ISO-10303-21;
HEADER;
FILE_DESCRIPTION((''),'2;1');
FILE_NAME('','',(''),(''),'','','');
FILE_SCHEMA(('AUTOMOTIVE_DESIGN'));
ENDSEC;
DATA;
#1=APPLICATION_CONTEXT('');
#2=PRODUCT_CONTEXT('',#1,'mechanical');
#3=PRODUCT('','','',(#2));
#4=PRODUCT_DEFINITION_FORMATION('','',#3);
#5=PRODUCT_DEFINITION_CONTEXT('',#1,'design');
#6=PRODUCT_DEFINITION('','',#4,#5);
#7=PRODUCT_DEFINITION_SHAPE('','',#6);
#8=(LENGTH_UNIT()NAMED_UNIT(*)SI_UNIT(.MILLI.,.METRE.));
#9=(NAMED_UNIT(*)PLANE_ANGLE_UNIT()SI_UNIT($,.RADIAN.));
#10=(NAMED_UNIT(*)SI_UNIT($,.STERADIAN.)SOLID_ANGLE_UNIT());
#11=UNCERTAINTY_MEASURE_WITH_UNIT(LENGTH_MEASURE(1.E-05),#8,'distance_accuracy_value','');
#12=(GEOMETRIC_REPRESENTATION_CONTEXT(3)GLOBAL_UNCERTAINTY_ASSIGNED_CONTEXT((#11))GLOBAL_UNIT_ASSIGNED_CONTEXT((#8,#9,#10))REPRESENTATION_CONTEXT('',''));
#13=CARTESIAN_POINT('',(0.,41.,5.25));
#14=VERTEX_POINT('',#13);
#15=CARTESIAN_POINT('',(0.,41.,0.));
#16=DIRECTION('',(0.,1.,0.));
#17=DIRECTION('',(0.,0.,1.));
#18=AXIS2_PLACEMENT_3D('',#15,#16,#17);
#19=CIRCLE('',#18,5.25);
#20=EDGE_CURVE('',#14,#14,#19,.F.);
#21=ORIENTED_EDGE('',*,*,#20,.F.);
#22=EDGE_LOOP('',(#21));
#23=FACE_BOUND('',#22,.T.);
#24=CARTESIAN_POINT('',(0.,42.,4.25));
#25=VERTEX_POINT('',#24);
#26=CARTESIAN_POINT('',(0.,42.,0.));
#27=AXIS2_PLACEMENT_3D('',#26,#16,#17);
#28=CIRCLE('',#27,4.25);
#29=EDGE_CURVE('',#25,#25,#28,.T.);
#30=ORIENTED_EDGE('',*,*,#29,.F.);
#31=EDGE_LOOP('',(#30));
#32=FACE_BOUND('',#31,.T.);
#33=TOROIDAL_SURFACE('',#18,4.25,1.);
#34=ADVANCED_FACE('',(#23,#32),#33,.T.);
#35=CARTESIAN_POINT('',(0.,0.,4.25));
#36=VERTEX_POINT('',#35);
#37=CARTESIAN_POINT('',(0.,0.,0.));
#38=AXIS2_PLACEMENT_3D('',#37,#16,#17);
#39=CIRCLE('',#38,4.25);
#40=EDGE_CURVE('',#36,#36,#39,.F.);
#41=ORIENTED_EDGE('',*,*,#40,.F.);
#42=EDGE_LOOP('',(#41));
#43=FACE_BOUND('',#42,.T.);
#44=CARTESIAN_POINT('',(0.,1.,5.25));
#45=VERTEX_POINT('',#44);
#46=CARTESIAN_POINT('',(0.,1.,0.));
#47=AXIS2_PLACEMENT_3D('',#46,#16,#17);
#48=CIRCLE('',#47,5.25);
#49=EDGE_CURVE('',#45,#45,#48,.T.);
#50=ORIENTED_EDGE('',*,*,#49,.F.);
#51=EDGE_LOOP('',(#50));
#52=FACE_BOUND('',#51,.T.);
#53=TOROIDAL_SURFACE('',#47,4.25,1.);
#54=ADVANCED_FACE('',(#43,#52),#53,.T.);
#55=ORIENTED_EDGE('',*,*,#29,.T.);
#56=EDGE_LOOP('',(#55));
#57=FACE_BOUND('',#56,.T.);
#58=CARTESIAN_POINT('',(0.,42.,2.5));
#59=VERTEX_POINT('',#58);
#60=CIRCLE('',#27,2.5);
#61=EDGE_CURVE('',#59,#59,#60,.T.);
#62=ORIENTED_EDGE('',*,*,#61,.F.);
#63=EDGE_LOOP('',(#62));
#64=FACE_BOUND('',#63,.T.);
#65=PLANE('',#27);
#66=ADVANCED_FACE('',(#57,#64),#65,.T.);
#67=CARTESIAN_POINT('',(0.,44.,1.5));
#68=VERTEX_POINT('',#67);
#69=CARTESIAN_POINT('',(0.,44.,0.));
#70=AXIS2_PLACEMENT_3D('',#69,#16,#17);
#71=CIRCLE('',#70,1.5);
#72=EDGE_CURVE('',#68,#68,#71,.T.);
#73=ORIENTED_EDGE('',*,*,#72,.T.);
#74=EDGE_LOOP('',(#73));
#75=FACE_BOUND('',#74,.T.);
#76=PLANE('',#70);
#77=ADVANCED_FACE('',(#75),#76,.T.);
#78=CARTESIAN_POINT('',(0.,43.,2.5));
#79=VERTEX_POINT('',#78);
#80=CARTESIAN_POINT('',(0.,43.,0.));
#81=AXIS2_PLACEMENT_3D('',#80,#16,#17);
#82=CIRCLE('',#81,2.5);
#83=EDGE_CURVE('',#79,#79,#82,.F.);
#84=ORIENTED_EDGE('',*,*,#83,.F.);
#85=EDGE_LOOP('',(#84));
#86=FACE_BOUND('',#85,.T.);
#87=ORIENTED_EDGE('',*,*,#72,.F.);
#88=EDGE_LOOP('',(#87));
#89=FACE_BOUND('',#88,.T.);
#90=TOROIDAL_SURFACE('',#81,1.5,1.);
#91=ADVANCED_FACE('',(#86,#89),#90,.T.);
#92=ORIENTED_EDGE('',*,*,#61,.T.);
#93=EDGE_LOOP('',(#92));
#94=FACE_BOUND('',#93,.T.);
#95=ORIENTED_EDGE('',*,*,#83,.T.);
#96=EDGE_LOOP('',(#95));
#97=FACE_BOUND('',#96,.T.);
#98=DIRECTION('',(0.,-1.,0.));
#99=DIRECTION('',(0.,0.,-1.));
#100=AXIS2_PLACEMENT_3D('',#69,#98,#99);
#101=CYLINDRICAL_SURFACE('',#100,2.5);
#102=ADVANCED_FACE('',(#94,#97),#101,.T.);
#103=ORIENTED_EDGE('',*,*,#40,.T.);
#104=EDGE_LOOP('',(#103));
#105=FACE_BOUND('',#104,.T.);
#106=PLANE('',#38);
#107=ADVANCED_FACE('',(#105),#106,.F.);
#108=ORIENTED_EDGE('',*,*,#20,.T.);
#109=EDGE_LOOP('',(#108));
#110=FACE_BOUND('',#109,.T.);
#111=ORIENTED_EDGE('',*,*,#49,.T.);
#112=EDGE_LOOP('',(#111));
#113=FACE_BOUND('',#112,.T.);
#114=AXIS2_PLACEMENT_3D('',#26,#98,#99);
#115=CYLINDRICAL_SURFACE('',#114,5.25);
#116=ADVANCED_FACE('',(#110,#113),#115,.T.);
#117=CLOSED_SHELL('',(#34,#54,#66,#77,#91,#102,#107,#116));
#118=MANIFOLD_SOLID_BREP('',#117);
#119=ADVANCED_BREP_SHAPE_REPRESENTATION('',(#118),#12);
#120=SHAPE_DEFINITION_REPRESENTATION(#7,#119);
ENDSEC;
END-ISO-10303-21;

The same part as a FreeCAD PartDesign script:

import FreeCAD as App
import Part
import Sketcher
Q = App.Units.Quantity


def edges_at(feature, points):
    """Names of the edges that pass closest to the given points."""
    edges = feature.Shape.Edges
    near = lambda p: min(range(len(edges)), key=lambda i: edges[i].distToShape(Part.Vertex(*p))[0])
    return sorted({f"Edge{near(p) + 1}" for p in points})

doc = App.newDocument("Part")
body = doc.addObject("PartDesign::Body", "Body")

# Sketch on XZ plane
sketch1 = body.newObject("Sketcher::SketchObject", "Sketch")
sketch1.AttachmentSupport = (doc.getObject("XZ_Plane"), [""])
sketch1.MapMode = "FlatFace"
sketch1.addGeometry(Part.Circle(App.Vector(0, 0, 0), App.Vector(0, 0, 1), 5), False)
sketch1.addConstraint([
    Sketcher.Constraint("Coincident", 0, 3, -1, 1),
    Sketcher.Constraint("Diameter", 0, Q("10.5 mm")),
])
pad1 = body.newObject("PartDesign::Pad", "Pad")
pad1.Profile = sketch1
pad1.Length = 42
pad1.Reversed = True

# Sketch on XZ plane
sketch2 = body.newObject("Sketcher::SketchObject", "Sketch001")
sketch2.AttachmentSupport = (doc.getObject("XZ_Plane"), [""])
sketch2.MapMode = "FlatFace"
sketch2.AttachmentOffset = App.Placement(App.Vector(0, 0, -42), App.Rotation())
sketch2.addGeometry(Part.Circle(App.Vector(0, 0, 0), App.Vector(0, 0, 1), 2.5), False)
sketch2.addConstraint([
    Sketcher.Constraint("Coincident", 0, 3, -1, 1),
    Sketcher.Constraint("Diameter", 0, Q("5 mm")),
])
pad2 = body.newObject("PartDesign::Pad", "Pad001")
pad2.Profile = sketch2
pad2.Length = 2
pad2.Reversed = True
doc.recompute()

fillet = body.newObject("PartDesign::Fillet", "Fillet")
fillet.Base = (pad2, edges_at(pad2, [(-5.25, 0, 0), (-5.25, 42, 0), (-2.5, 44, 0)]))
fillet.Radius = 1

doc.recompute()
